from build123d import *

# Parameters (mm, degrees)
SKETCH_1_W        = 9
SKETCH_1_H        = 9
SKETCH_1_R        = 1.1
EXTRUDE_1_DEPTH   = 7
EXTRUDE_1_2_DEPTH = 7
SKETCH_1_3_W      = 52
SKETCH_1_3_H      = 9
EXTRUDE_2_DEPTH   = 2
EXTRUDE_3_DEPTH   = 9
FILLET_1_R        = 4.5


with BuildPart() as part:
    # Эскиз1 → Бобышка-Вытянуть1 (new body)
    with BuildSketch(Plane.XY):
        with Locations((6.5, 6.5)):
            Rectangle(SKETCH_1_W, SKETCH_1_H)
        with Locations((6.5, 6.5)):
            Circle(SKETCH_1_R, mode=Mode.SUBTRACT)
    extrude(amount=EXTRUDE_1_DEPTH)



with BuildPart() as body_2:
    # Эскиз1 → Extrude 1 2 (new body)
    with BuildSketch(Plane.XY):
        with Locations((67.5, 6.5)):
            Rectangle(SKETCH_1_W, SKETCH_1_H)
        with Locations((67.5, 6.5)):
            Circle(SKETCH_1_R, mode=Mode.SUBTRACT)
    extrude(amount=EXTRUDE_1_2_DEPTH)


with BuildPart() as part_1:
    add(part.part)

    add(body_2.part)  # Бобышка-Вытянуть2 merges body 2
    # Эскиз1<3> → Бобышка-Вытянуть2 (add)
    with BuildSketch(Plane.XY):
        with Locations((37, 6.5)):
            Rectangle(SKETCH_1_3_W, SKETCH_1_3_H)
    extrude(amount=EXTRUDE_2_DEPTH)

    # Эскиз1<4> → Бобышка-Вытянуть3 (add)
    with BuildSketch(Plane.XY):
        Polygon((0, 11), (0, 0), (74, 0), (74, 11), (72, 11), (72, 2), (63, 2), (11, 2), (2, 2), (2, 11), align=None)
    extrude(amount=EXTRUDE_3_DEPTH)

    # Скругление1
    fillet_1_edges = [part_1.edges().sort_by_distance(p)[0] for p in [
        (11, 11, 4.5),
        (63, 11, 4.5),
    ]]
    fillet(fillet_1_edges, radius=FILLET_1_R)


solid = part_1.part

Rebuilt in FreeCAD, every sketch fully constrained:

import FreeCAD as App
import Part
import Sketcher
Q = App.Units.Quantity


def edges_at(feature, points):
    """Names of the edges that pass closest to the given points."""
    edges = feature.Shape.Edges
    near = lambda p: min(range(len(edges)), key=lambda i: edges[i].distToShape(Part.Vertex(*p))[0])
    return sorted({f"Edge{near(p) + 1}" for p in points})

doc = App.newDocument("Part")
body = doc.addObject("PartDesign::Body", "Body")

# Sketch on XY plane
sketch1 = body.newObject("Sketcher::SketchObject", "Sketch")
sketch1.AttachmentSupport = (doc.getObject("XY_Plane"), [""])
sketch1.MapMode = "FlatFace"
sketch1.addGeometry([
    Part.LineSegment(App.Vector(2, 11, 0), App.Vector(2, 2, 0)),  # 0
    Part.LineSegment(App.Vector(2, 2, 0), App.Vector(11, 2, 0)),  # 1
    Part.LineSegment(App.Vector(11, 2, 0), App.Vector(11, 11, 0)),  # 2
    Part.LineSegment(App.Vector(11, 11, 0), App.Vector(2, 11, 0)),  # 3
    Part.Circle(App.Vector(6.5, 6.5, 0), App.Vector(0, 0, 1), 1.1),  # 4
], False)
sketch1.addConstraint([
    Sketcher.Constraint("Coincident", 0, 2, 1, 1),
    Sketcher.Constraint("Coincident", 1, 2, 2, 1),
    Sketcher.Constraint("Coincident", 2, 2, 3, 1),
    Sketcher.Constraint("Coincident", 3, 2, 0, 1),
    Sketcher.Constraint("Vertical", 0),
    Sketcher.Constraint("Horizontal", 1),
    Sketcher.Constraint("Vertical", 2),
    Sketcher.Constraint("Horizontal", 3),
    Sketcher.Constraint("Equal", 3, 0),
    Sketcher.Constraint("Diameter", 4, Q("2.2 mm")),
    Sketcher.Constraint("DistanceX", 1, 1, 1, 2, Q("9 mm")),
    Sketcher.Constraint("DistanceX", -1, 1, 0, 2, Q("2 mm")),
    Sketcher.Constraint("DistanceY", -1, 1, 0, 2, Q("2 mm")),
    Sketcher.Constraint("DistanceX", -1, 1, 4, 3, Q("6.5 mm")),
    Sketcher.Constraint("DistanceY", -1, 1, 4, 3, Q("6.5 mm")),
])
pad1 = body.newObject("PartDesign::Pad", "Pad")
pad1.Profile = sketch1
pad1.Length = 7
body2 = doc.addObject("PartDesign::Body", "Body001")

# Sketch on XY plane
sketch2 = body2.newObject("Sketcher::SketchObject", "Sketch001")
sketch2.AttachmentSupport = (doc.getObject("XY_Plane001"), [""])
sketch2.MapMode = "FlatFace"
sketch2.addGeometry([
    Part.LineSegment(App.Vector(63, 11, 0), App.Vector(63, 2, 0)),  # 0
    Part.LineSegment(App.Vector(63, 2, 0), App.Vector(72, 2, 0)),  # 1
    Part.LineSegment(App.Vector(72, 2, 0), App.Vector(72, 11, 0)),  # 2
    Part.LineSegment(App.Vector(72, 11, 0), App.Vector(63, 11, 0)),  # 3
    Part.Circle(App.Vector(67.5, 6.5, 0), App.Vector(0, 0, 1), 1.1),  # 4
], False)
sketch2.addConstraint([
    Sketcher.Constraint("Coincident", 0, 2, 1, 1),
    Sketcher.Constraint("Coincident", 1, 2, 2, 1),
    Sketcher.Constraint("Coincident", 2, 2, 3, 1),
    Sketcher.Constraint("Coincident", 3, 2, 0, 1),
    Sketcher.Constraint("Vertical", 0),
    Sketcher.Constraint("Horizontal", 1),
    Sketcher.Constraint("Vertical", 2),
    Sketcher.Constraint("Horizontal", 3),
    Sketcher.Constraint("Equal", 3, 0),
    Sketcher.Constraint("Diameter", 4, Q("2.2 mm")),
    Sketcher.Constraint("DistanceX", 1, 1, 1, 2, Q("9 mm")),
    Sketcher.Constraint("DistanceX", -1, 1, 0, 2, Q("63 mm")),
    Sketcher.Constraint("DistanceY", -1, 1, 0, 2, Q("2 mm")),
    Sketcher.Constraint("DistanceX", -1, 1, 4, 3, Q("67.5 mm")),
    Sketcher.Constraint("DistanceY", -1, 1, 4, 3, Q("6.5 mm")),
])
pad2 = body2.newObject("PartDesign::Pad", "Pad001")
pad2.Profile = sketch2
pad2.Length = 7
body.AllowCompound = True
doc.recompute()

boolean = body.newObject("PartDesign::Boolean", "Boolean")
boolean.Type = "Fuse"
boolean.addObjects([body2])

# Sketch on XY plane
sketch3 = body.newObject("Sketcher::SketchObject", "Sketch002")
sketch3.AttachmentSupport = (doc.getObject("XY_Plane"), [""])
sketch3.MapMode = "FlatFace"
sketch3.addGeometry([
    Part.LineSegment(App.Vector(11, 11, 0), App.Vector(11, 2, 0)),
    Part.LineSegment(App.Vector(11, 2, 0), App.Vector(63, 2, 0)),
    Part.LineSegment(App.Vector(63, 2, 0), App.Vector(63, 11, 0)),
    Part.LineSegment(App.Vector(63, 11, 0), App.Vector(11, 11, 0)),
], False)
sketch3.addConstraint([
    Sketcher.Constraint("Coincident", 0, 2, 1, 1),
    Sketcher.Constraint("Coincident", 1, 2, 2, 1),
    Sketcher.Constraint("Coincident", 2, 2, 3, 1),
    Sketcher.Constraint("Coincident", 3, 2, 0, 1),
    Sketcher.Constraint("Vertical", 0),
    Sketcher.Constraint("Horizontal", 1),
    Sketcher.Constraint("Vertical", 2),
    Sketcher.Constraint("Horizontal", 3),
    Sketcher.Constraint("DistanceX", 1, 1, 1, 2, Q("52 mm")),
    Sketcher.Constraint("DistanceY", 0, 2, 0, 1, Q("9 mm")),
    Sketcher.Constraint("DistanceX", -1, 1, 0, 2, Q("11 mm")),
    Sketcher.Constraint("DistanceY", -1, 1, 0, 2, Q("2 mm")),
])
pad3 = body.newObject("PartDesign::Pad", "Pad002")
pad3.Profile = sketch3
pad3.Length = 2

# Sketch on XY plane
sketch4 = body.newObject("Sketcher::SketchObject", "Sketch003")
sketch4.AttachmentSupport = (doc.getObject("XY_Plane"), [""])
sketch4.MapMode = "FlatFace"
sketch4.addGeometry([
    Part.LineSegment(App.Vector(0, 11, 0), App.Vector(0, 0, 0)),  # 0
    Part.LineSegment(App.Vector(0, 0, 0), App.Vector(74, 0, 0)),  # 1
    Part.LineSegment(App.Vector(74, 0, 0), App.Vector(74, 11, 0)),  # 2
    Part.LineSegment(App.Vector(74, 11, 0), App.Vector(72, 11, 0)),  # 3
    Part.LineSegment(App.Vector(72, 11, 0), App.Vector(72, 2, 0)),  # 4
    Part.LineSegment(App.Vector(72, 2, 0), App.Vector(2, 2, 0)),  # 5
    Part.LineSegment(App.Vector(2, 2, 0), App.Vector(2, 11, 0)),  # 6
    Part.LineSegment(App.Vector(2, 11, 0), App.Vector(0, 11, 0)),  # 7
], False)
sketch4.addConstraint([
    Sketcher.Constraint("Coincident", 0, 2, 1, 1),
    Sketcher.Constraint("Coincident", 1, 2, 2, 1),
    Sketcher.Constraint("Coincident", 2, 2, 3, 1),
    Sketcher.Constraint("Coincident", 3, 2, 4, 1),
    Sketcher.Constraint("Coincident", 4, 2, 5, 1),
    Sketcher.Constraint("Coincident", 5, 2, 6, 1),
    Sketcher.Constraint("Coincident", 6, 2, 7, 1),
    Sketcher.Constraint("Coincident", 7, 2, 0, 1),
    Sketcher.Constraint("Vertical", 0),
    Sketcher.Constraint("Horizontal", 1),
    Sketcher.Constraint("Vertical", 2),
    Sketcher.Constraint("Horizontal", 3),
    Sketcher.Constraint("Vertical", 4),
    Sketcher.Constraint("Horizontal", 5),
    Sketcher.Constraint("Vertical", 6),
    Sketcher.Constraint("Horizontal", 7),
    Sketcher.Constraint("Coincident", 0, 2, -1, 1),
    Sketcher.Constraint("Horizontal", 3, 2, 6, 2),
    Sketcher.Constraint("Equal", 3, 7),
    Sketcher.Constraint("DistanceX", 1, 1, 1, 2, Q("74 mm")),
    Sketcher.Constraint("DistanceX", 3, 2, 3, 1, Q("2 mm")),
    Sketcher.Constraint("DistanceY", 0, 2, 0, 1, Q("11 mm")),
    Sketcher.Constraint("DistanceY", 4, 2, 4, 1, Q("9 mm")),
])
pad4 = body.newObject("PartDesign::Pad", "Pad003")
pad4.Profile = sketch4
pad4.Length = 9
doc.recompute()

fillet = body.newObject("PartDesign::Fillet", "Fillet")
fillet.Base = (pad4, edges_at(pad4, [(11, 11, 4.5), (63, 11, 4.5)]))
fillet.Radius = 4.5

doc.recompute()
